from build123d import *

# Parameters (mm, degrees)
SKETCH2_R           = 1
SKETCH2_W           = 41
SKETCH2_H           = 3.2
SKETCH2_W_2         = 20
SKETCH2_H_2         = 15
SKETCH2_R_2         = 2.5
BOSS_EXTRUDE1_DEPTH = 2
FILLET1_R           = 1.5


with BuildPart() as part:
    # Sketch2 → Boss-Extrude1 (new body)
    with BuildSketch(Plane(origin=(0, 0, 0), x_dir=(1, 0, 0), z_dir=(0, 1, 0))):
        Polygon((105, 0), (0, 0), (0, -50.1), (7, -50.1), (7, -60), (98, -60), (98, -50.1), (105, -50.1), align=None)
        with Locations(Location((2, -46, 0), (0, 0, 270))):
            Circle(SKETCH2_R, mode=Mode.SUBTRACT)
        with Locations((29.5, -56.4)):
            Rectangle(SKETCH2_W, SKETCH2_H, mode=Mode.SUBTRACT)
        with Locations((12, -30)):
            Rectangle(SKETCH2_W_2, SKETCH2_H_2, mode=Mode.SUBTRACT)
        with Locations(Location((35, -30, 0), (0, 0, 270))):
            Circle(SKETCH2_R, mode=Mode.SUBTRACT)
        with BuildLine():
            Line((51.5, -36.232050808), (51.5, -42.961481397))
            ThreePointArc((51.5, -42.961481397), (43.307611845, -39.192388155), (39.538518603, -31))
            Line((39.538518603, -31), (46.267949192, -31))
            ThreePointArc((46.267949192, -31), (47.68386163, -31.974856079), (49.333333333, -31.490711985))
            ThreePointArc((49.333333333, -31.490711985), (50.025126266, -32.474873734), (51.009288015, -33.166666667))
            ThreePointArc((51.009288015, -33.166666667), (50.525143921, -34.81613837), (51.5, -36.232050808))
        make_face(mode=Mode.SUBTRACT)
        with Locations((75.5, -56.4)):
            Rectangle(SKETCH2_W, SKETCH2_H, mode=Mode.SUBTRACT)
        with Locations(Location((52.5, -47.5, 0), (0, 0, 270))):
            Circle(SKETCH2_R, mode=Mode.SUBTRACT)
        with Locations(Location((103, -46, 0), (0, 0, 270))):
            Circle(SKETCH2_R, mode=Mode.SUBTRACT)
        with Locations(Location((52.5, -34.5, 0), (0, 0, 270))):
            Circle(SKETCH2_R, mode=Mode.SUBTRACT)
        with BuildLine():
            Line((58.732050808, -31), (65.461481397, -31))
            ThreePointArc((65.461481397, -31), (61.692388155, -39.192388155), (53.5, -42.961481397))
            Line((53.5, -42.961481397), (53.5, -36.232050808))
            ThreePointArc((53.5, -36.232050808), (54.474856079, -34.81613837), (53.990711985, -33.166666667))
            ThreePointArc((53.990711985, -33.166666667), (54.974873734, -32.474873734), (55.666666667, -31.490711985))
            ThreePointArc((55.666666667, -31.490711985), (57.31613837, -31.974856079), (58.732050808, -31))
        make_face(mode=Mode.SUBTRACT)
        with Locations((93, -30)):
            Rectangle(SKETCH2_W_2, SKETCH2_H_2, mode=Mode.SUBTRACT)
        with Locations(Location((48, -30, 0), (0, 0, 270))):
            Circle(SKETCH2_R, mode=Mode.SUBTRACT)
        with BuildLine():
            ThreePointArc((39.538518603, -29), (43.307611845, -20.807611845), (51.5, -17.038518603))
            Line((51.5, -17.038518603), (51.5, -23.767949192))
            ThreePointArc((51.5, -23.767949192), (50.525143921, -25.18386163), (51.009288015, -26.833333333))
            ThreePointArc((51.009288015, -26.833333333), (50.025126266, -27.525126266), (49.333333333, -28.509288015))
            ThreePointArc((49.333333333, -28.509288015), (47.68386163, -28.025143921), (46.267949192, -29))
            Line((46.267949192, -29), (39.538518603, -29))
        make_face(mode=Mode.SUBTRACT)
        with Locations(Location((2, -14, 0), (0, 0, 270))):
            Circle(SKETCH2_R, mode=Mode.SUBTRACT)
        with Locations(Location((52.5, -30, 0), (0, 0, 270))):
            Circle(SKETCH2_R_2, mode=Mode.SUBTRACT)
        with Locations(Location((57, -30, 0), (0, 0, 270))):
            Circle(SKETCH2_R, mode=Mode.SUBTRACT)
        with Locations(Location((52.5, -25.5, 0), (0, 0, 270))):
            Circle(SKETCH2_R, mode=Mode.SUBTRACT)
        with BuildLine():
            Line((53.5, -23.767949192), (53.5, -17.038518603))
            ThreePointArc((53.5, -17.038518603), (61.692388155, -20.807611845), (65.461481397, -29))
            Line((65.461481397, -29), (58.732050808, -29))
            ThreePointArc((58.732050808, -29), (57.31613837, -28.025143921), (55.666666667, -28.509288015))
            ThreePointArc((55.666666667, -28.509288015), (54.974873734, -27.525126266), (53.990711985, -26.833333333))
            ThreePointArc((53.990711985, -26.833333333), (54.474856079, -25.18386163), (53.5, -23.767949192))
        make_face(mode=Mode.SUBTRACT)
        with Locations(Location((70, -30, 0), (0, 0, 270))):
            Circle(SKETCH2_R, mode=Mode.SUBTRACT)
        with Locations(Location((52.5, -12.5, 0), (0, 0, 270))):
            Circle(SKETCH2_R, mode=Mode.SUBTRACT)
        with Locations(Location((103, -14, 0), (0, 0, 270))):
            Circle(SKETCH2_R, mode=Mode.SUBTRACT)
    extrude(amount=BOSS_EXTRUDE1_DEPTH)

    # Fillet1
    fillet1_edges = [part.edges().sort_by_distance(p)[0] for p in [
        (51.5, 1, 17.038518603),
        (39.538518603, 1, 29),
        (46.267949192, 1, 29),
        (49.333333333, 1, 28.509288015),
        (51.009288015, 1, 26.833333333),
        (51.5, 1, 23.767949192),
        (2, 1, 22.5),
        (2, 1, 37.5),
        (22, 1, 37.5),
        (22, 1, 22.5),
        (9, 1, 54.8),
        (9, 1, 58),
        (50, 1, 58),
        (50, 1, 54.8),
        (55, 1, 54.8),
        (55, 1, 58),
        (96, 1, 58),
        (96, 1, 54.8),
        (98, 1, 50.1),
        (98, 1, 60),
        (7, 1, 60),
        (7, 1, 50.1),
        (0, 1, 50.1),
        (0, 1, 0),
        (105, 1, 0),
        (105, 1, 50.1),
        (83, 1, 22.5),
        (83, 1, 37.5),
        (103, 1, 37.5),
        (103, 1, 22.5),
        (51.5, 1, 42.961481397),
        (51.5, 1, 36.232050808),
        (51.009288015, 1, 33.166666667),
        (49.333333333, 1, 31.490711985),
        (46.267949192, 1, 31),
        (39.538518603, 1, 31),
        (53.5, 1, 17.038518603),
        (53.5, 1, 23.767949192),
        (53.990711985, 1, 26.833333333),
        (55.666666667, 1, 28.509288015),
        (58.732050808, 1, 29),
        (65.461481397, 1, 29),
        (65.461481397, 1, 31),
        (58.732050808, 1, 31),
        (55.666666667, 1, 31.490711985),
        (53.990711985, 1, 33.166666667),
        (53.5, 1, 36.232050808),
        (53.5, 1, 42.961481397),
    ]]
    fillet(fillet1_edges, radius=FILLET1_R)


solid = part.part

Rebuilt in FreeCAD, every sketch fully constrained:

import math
import FreeCAD as App
import Part
import Sketcher
from FreeCAD import Vector
Q = App.Units.Quantity


def edges_at(feature, points):
    """Names of the edges that pass closest to the given points."""
    edges = feature.Shape.Edges
    near = lambda p: min(range(len(edges)), key=lambda i: edges[i].distToShape(Part.Vertex(*p))[0])
    return sorted({f"Edge{near(p) + 1}" for p in points})

doc = App.newDocument("Part")
body = doc.addObject("PartDesign::Body", "Body")

sketch1 = body.newObject("Sketcher::SketchObject", "Sketch")
sketch1.AttachmentSupport = (doc.getObject("XZ_Plane"), [""])
sketch1.MapMode = "FlatFace"
sketch1.addGeometry([
    Part.LineSegment(Vector(105, 0, 0), Vector(0, 0, 0)),
    Part.LineSegment(Vector(0, 0, 0), Vector(0, 50.1, 0)),
    Part.LineSegment(Vector(0, 50.1, 0), Vector(7, 50.1, 0)),
    Part.LineSegment(Vector(7, 50.1, 0), Vector(7, 60, 0)),
    Part.LineSegment(Vector(7, 60, 0), Vector(98, 60, 0)),
    Part.LineSegment(Vector(98, 60, 0), Vector(98, 50.1, 0)),
    Part.LineSegment(Vector(98, 50.1, 0), Vector(105, 50.1, 0)),
    Part.LineSegment(Vector(105, 50.1, 0), Vector(105, 0, 0)),
    Part.LineSegment(Vector(50, 58, 0), Vector(9, 58, 0)),
    Part.LineSegment(Vector(9, 58, 0), Vector(9, 54.8, 0)),
    Part.LineSegment(Vector(9, 54.8, 0), Vector(50, 54.8, 0)),
    Part.LineSegment(Vector(50, 54.8, 0), Vector(50, 58, 0)),
    Part.Circle(Vector(52.5, 47.5, 0), Vector(0, 0, 1), 1),
    Part.Circle(Vector(2, 46, 0), Vector(0, 0, 1), 1),
    Part.ArcOfCircle(Part.Circle(Vector(52.5, 34.5, 0), Vector(0, 0, 1), 2), math.radians(120), math.radians(221.810315)),
    Part.LineSegment(Vector(51.5, 36.232051, 0), Vector(51.5, 42.961481, 0)),
    Part.ArcOfCircle(Part.Circle(Vector(52.5, 30, 0), Vector(0, 0, 1), 13), math.radians(94.411726), math.radians(175.588274)),
    Part.LineSegment(Vector(39.538519, 31, 0), Vector(46.267949, 31, 0)),
    Part.ArcOfCircle(Part.Circle(Vector(48, 30, 0), Vector(0, 0, 1), 2), math.radians(48.189685), math.radians(150)),
    Part.ArcOfCircle(Part.Circle(Vector(52.5, 30, 0), Vector(0, 0, 1), 3.5), math.radians(115.208765), math.radians(154.791235)),
    Part.LineSegment(Vector(96, 58, 0), Vector(55, 58, 0)),
    Part.LineSegment(Vector(55, 58, 0), Vector(55, 54.8, 0)),
    Part.LineSegment(Vector(55, 54.8, 0), Vector(96, 54.8, 0)),
    Part.LineSegment(Vector(96, 54.8, 0), Vector(96, 58, 0)),
    Part.ArcOfCircle(Part.Circle(Vector(57, 30, 0), Vector(0, 0, 1), 2), math.radians(30), math.radians(131.810315)),
    Part.LineSegment(Vector(58.732051, 31, 0), Vector(65.461481, 31, 0)),
    Part.ArcOfCircle(Part.Circle(Vector(52.5, 30, 0), Vector(0, 0, 1), 13), math.radians(4.411726), math.radians(85.588274)),
    Part.LineSegment(Vector(53.5, 42.961481, 0), Vector(53.5, 36.232051, 0)),
    Part.ArcOfCircle(Part.Circle(Vector(52.5, 34.5, 0), Vector(0, 0, 1), 2), math.radians(-41.810315), math.radians(60)),
    Part.ArcOfCircle(Part.Circle(Vector(52.5, 30, 0), Vector(0, 0, 1), 3.5), math.radians(25.208765), math.radians(64.791235)),
    Part.Circle(Vector(103, 46, 0), Vector(0, 0, 1), 1),
    Part.LineSegment(Vector(22, 37.5, 0), Vector(2, 37.5, 0)),
    Part.LineSegment(Vector(2, 37.5, 0), Vector(2, 22.5, 0)),
    Part.LineSegment(Vector(2, 22.5, 0), Vector(22, 22.5, 0)),
    Part.LineSegment(Vector(22, 22.5, 0), Vector(22, 37.5, 0)),
    Part.Circle(Vector(35, 30, 0), Vector(0, 0, 1), 1),
    Part.Circle(Vector(52.5, 34.5, 0), Vector(0, 0, 1), 1),
    Part.Circle(Vector(48, 30, 0), Vector(0, 0, 1), 1),
    Part.Circle(Vector(52.5, 30, 0), Vector(0, 0, 1), 2.5),
    Part.Circle(Vector(52.5, 25.5, 0), Vector(0, 0, 1), 1),
    Part.Circle(Vector(2, 14, 0), Vector(0, 0, 1), 1),
    Part.LineSegment(Vector(46.267949, 29, 0), Vector(39.538519, 29, 0)),
    Part.ArcOfCircle(Part.Circle(Vector(52.5, 30, 0), Vector(0, 0, 1), 13), math.radians(-175.588274), math.radians(-94.411726)),
    Part.LineSegment(Vector(51.5, 17.038519, 0), Vector(51.5, 23.767949, 0)),
    Part.ArcOfCircle(Part.Circle(Vector(52.5, 25.5, 0), Vector(0, 0, 1), 2), math.radians(138.189685), math.radians(240)),
    Part.ArcOfCircle(Part.Circle(Vector(52.5, 30, 0), Vector(0, 0, 1), 3.5), math.radians(-154.791235), math.radians(-115.208765)),
    Part.ArcOfCircle(Part.Circle(Vector(48, 30, 0), Vector(0, 0, 1), 2), math.radians(-150), math.radians(-48.189685)),
    Part.Circle(Vector(52.5, 12.5, 0), Vector(0, 0, 1), 1),
    Part.Circle(Vector(57, 30, 0), Vector(0, 0, 1), 1),
    Part.Circle(Vector(70, 30, 0), Vector(0, 0, 1), 1),
    Part.LineSegment(Vector(103, 37.5, 0), Vector(83, 37.5, 0)),
    Part.LineSegment(Vector(83, 37.5, 0), Vector(83, 22.5, 0)),
    Part.LineSegment(Vector(83, 22.5, 0), Vector(103, 22.5, 0)),
    Part.LineSegment(Vector(103, 22.5, 0), Vector(103, 37.5, 0)),
    Part.ArcOfCircle(Part.Circle(Vector(52.5, 25.5, 0), Vector(0, 0, 1), 2), math.radians(-60), math.radians(41.810315)),
    Part.LineSegment(Vector(53.5, 23.767949, 0), Vector(53.5, 17.038519, 0)),
    Part.ArcOfCircle(Part.Circle(Vector(52.5, 30, 0), Vector(0, 0, 1), 13), math.radians(-85.588274), math.radians(-4.411726)),
    Part.LineSegment(Vector(65.461481, 29, 0), Vector(58.732051, 29, 0)),
    Part.ArcOfCircle(Part.Circle(Vector(57, 30, 0), Vector(0, 0, 1), 2), math.radians(-131.810315), math.radians(-30)),
    Part.ArcOfCircle(Part.Circle(Vector(52.5, 30, 0), Vector(0, 0, 1), 3.5), math.radians(-64.791235), math.radians(-25.208765)),
    Part.Circle(Vector(103, 14, 0), Vector(0, 0, 1), 1),
], False)
sketch1.addConstraint([
    Sketcher.Constraint("Coincident", 0, 2, 1, 1),
    Sketcher.Constraint("Coincident", 1, 2, 2, 1),
    Sketcher.Constraint("Coincident", 2, 2, 3, 1),
    Sketcher.Constraint("Coincident", 3, 2, 4, 1),
    Sketcher.Constraint("Coincident", 4, 2, 5, 1),
    Sketcher.Constraint("Coincident", 5, 2, 6, 1),
    Sketcher.Constraint("Coincident", 6, 2, 7, 1),
    Sketcher.Constraint("Coincident", 7, 2, 0, 1),
    Sketcher.Constraint("Coincident", 8, 2, 9, 1),
    Sketcher.Constraint("Coincident", 9, 2, 10, 1),
    Sketcher.Constraint("Coincident", 10, 2, 11, 1),
    Sketcher.Constraint("Coincident", 11, 2, 8, 1),
    Sketcher.Constraint("Coincident", 14, 1, 15, 1),
    Sketcher.Constraint("Coincident", 15, 2, 16, 1),
    Sketcher.Constraint("Coincident", 16, 2, 17, 1),
    Sketcher.Constraint("Coincident", 17, 2, 18, 2),
    Sketcher.Constraint("Coincident", 18, 1, 19, 2),
    Sketcher.Constraint("Coincident", 19, 1, 14, 2),
    Sketcher.Constraint("Coincident", 20, 2, 21, 1),
    Sketcher.Constraint("Coincident", 21, 2, 22, 1),
    Sketcher.Constraint("Coincident", 22, 2, 23, 1),
    Sketcher.Constraint("Coincident", 23, 2, 20, 1),
    Sketcher.Constraint("Coincident", 24, 1, 25, 1),
    Sketcher.Constraint("Coincident", 25, 2, 26, 1),
    Sketcher.Constraint("Coincident", 26, 2, 27, 1),
    Sketcher.Constraint("Coincident", 27, 2, 28, 2),
    Sketcher.Constraint("Coincident", 28, 1, 29, 2),
    Sketcher.Constraint("Coincident", 29, 1, 24, 2),
    Sketcher.Constraint("Coincident", 31, 2, 32, 1),
    Sketcher.Constraint("Coincident", 32, 2, 33, 1),
    Sketcher.Constraint("Coincident", 33, 2, 34, 1),
    Sketcher.Constraint("Coincident", 34, 2, 31, 1),
    Sketcher.Constraint("Coincident", 41, 2, 42, 1),
    Sketcher.Constraint("Coincident", 42, 2, 43, 1),
    Sketcher.Constraint("Coincident", 43, 2, 44, 2),
    Sketcher.Constraint("Coincident", 44, 1, 45, 2),
    Sketcher.Constraint("Coincident", 45, 1, 46, 2),
    Sketcher.Constraint("Coincident", 46, 1, 41, 1),
    Sketcher.Constraint("Coincident", 50, 2, 51, 1),
    Sketcher.Constraint("Coincident", 51, 2, 52, 1),
    Sketcher.Constraint("Coincident", 52, 2, 53, 1),
    Sketcher.Constraint("Coincident", 53, 2, 50, 1),
    Sketcher.Constraint("Coincident", 54, 1, 55, 1),
    Sketcher.Constraint("Coincident", 55, 2, 56, 1),
    Sketcher.Constraint("Coincident", 56, 2, 57, 1),
    Sketcher.Constraint("Coincident", 57, 2, 58, 2),
    Sketcher.Constraint("Coincident", 58, 1, 59, 2),
    Sketcher.Constraint("Coincident", 59, 1, 54, 2),
    Sketcher.Constraint("Horizontal", 0),
    Sketcher.Constraint("Vertical", 1),
    Sketcher.Constraint("Horizontal", 2),
    Sketcher.Constraint("Vertical", 3),
    Sketcher.Constraint("Horizontal", 4),
    Sketcher.Constraint("Vertical", 5),
    Sketcher.Constraint("Horizontal", 6),
    Sketcher.Constraint("Vertical", 7),
    Sketcher.Constraint("Horizontal", 8),
    Sketcher.Constraint("Vertical", 9),
    Sketcher.Constraint("Horizontal", 10),
    Sketcher.Constraint("Vertical", 11),
    Sketcher.Constraint("Vertical", 15),
    Sketcher.Constraint("Horizontal", 17),
    Sketcher.Constraint("Horizontal", 20),
    Sketcher.Constraint("Vertical", 21),
    Sketcher.Constraint("Horizontal", 22),
    Sketcher.Constraint("Vertical", 23),
    Sketcher.Constraint("Horizontal", 25),
    Sketcher.Constraint("Vertical", 27),
    Sketcher.Constraint("Horizontal", 31),
    Sketcher.Constraint("Vertical", 32),
    Sketcher.Constraint("Horizontal", 33),
    Sketcher.Constraint("Vertical", 34),
    Sketcher.Constraint("Horizontal", 41),
    Sketcher.Constraint("Vertical", 43),
    Sketcher.Constraint("Horizontal", 50),
    Sketcher.Constraint("Vertical", 51),
    Sketcher.Constraint("Horizontal", 52),
    Sketcher.Constraint("Vertical", 53),
    Sketcher.Constraint("Vertical", 55),
    Sketcher.Constraint("Horizontal", 57),
    Sketcher.Constraint("Coincident", 0, 2, -1, 1),
    Sketcher.Constraint("Coincident", 19, 3, 16, 3),
    Sketcher.Constraint("Coincident", 26, 3, 16, 3),
    Sketcher.Constraint("Coincident", 28, 3, 14, 3),
    Sketcher.Constraint("Coincident", 29, 3, 16, 3),
    Sketcher.Constraint("Coincident", 36, 3, 14, 3),
    Sketcher.Constraint("Coincident", 37, 3, 18, 3),
    Sketcher.Constraint("Coincident", 38, 3, 16, 3),
    Sketcher.Constraint("Coincident", 42, 3, 16, 3),
    Sketcher.Constraint("Coincident", 44, 3, 39, 3),
    Sketcher.Constraint("Coincident", 45, 3, 16, 3),
    Sketcher.Constraint("Coincident", 46, 3, 18, 3),
    Sketcher.Constraint("Coincident", 48, 3, 24, 3),
    Sketcher.Constraint("Coincident", 54, 3, 39, 3),
    Sketcher.Constraint("Coincident", 56, 3, 16, 3),
    Sketcher.Constraint("Coincident", 58, 3, 24, 3),
    Sketcher.Constraint("Coincident", 59, 3, 16, 3),
    Sketcher.Constraint("Equal", 12, 13),
    Sketcher.Constraint("Equal", 14, 18),
    Sketcher.Constraint("Equal", 18, 24),
    Sketcher.Constraint("Equal", 16, 26),
    Sketcher.Constraint("Equal", 24, 28),
    Sketcher.Constraint("Equal", 19, 29),
    Sketcher.Constraint("Equal", 13, 30),
    Sketcher.Constraint("Equal", 30, 35),
    Sketcher.Constraint("Equal", 35, 36),
    Sketcher.Constraint("Equal", 36, 37),
    Sketcher.Constraint("Equal", 37, 39),
    Sketcher.Constraint("Equal", 39, 40),
    Sketcher.Constraint("Equal", 26, 42),
    Sketcher.Constraint("Equal", 28, 44),
    Sketcher.Constraint("Equal", 29, 45),
    Sketcher.Constraint("Equal", 44, 46),
    Sketcher.Constraint("Equal", 40, 47),
    Sketcher.Constraint("Equal", 47, 48),
    Sketcher.Constraint("Equal", 48, 49),
    Sketcher.Constraint("Equal", 46, 54),
    Sketcher.Constraint("Equal", 42, 56),
    Sketcher.Constraint("Equal", 54, 58),
    Sketcher.Constraint("Equal", 45, 59),
    Sketcher.Constraint("Equal", 49, 60),
    Sketcher.Constraint("Horizontal", 16, 3, 18, 3),
    Sketcher.Constraint("Horizontal", 19, 3, 24, 3),
    Sketcher.Constraint("Horizontal", 13, 3, 30, 3),
    Sketcher.Constraint("Horizontal", 29, 3, 35, 3),
    Sketcher.Constraint("Horizontal", 48, 3, 49, 3),
    Sketcher.Constraint("Horizontal", 40, 3, 60, 3),
    Sketcher.Constraint("Horizontal", 2, 2, 5, 2),
    Sketcher.Constraint("Horizontal", 11, 2, 20, 2),
    Sketcher.Constraint("Horizontal", 10, 2, 21, 2),
    Sketcher.Constraint("Horizontal", 17, 2, 24, 1),
    Sketcher.Constraint("Horizontal", 15, 2, 26, 2),
    Sketcher.Constraint("Horizontal", 14, 1, 27, 2),
    Sketcher.Constraint("Horizontal", 18, 1, 29, 1),
    Sketcher.Constraint("Horizontal", 34, 2, 50, 2),
    Sketcher.Constraint("Horizontal", 33, 2, 51, 2),
    Sketcher.Constraint("Horizontal", 43, 2, 54, 1),
    Sketcher.Constraint("Horizontal", 42, 2, 55, 2),
    Sketcher.Constraint("Horizontal", 46, 1, 56, 2),
    Sketcher.Constraint("Vertical", 12, 3, 14, 3),
    Sketcher.Constraint("Vertical", 13, 3, 40, 3),
    Sketcher.Constraint("Vertical", 45, 3, 47, 3),
    Sketcher.Constraint("Vertical", 30, 3, 60, 3),
    Sketcher.Constraint("Vertical", 40, 3, 31, 2),
    Sketcher.Constraint("Vertical", 16, 2, 41, 2),
    Sketcher.Constraint("Vertical", 15, 2, 42, 2),
    Sketcher.Constraint("Vertical", 19, 1, 44, 1),
    Sketcher.Constraint("Vertical", 60, 3, 52, 2),
    Sketcher.Constraint("Equal", 2, 6),
    Sketcher.Constraint("Equal", 10, 20),
    Sketcher.Constraint("Equal", 33, 50),
    Sketcher.Constraint("Equal", 57, 15),
    Sketcher.Constraint("Diameter", 12, Q("2 mm")),
    Sketcher.Constraint("Diameter", 38, Q("5 mm")),
    Sketcher.Constraint("Radius", 14, Q("2 mm")),
    Sketcher.Constraint("Radius", 16, Q("13 mm")),
    Sketcher.Constraint("Radius", 19, Q("3.5 mm")),
    Sketcher.Constraint("DistanceX", 0, 2, 0, 1, Q("105 mm")),
    Sketcher.Constraint("DistanceX", 2, 1, 2, 2, Q("7 mm")),
    Sketcher.Constraint("DistanceX", 8, 2, 8, 1, Q("41 mm")),
    Sketcher.Constraint("DistanceX", 31, 2, 31, 1, Q("20 mm")),
    Sketcher.Constraint("DistanceY", 32, 2, 32, 1, Q("15 mm")),
    Sketcher.Constraint("DistanceY", 1, 1, 1, 2, Q("50.1 mm")),
    Sketcher.Constraint("DistanceY", 3, 1, 3, 2, Q("9.9 mm")),
    Sketcher.Constraint("DistanceY", 9, 2, 9, 1, Q("3.2 mm")),
    Sketcher.Constraint("DistanceX", -1, 1, 13, 3, Q("2 mm")),
    Sketcher.Constraint("DistanceY", -1, 1, 13, 3, Q("46 mm")),
    Sketcher.Constraint("DistanceY", -1, 1, 16, 3, Q("30 mm")),
    Sketcher.Constraint("DistanceX", -1, 1, 18, 3, Q("48 mm")),
    Sketcher.Constraint("DistanceX", -1, 1, 24, 3, Q("57 mm")),
    Sketcher.Constraint("DistanceX", -1, 1, 30, 3, Q("103 mm")),
    Sketcher.Constraint("DistanceX", -1, 1, 35, 3, Q("35 mm")),
    Sketcher.Constraint("DistanceY", -1, 1, 40, 3, Q("14 mm")),
    Sketcher.Constraint("DistanceX", -1, 1, 49, 3, Q("70 mm")),
    Sketcher.Constraint("DistanceX", -1, 1, 8, 2, Q("9 mm")),
    Sketcher.Constraint("DistanceY", -1, 1, 8, 2, Q("58 mm")),
    Sketcher.Constraint("DistanceY", -1, 1, 16, 2, Q("31 mm")),
    Sketcher.Constraint("DistanceX", -1, 1, 20, 2, Q("55 mm")),
    Sketcher.Constraint("DistanceY", -1, 1, 12, 3, Q("47.5 mm")),
    Sketcher.Constraint("DistanceY", -1, 1, 14, 3, Q("34.5 mm")),
    Sketcher.Constraint("DistanceY", -1, 1, 47, 3, Q("12.5 mm")),
    Sketcher.Constraint("DistanceY", -1, 1, 31, 2, Q("37.5 mm")),
])
pad1 = body.newObject("PartDesign::Pad", "Pad")
pad1.Profile = sketch1
pad1.Length = 2
pad1.Reversed = True
doc.recompute()

fillet = body.newObject("PartDesign::Fillet", "Fillet")
fillet.Base = (pad1, edges_at(pad1, [
    (51.5, 1, 17.039),
    (39.539, 1, 29),
    (46.268, 1, 29),
    (49.333, 1, 28.509),
    (51.009, 1, 26.833),
    (51.5, 1, 23.768),
    (2, 1, 22.5),
    (2, 1, 37.5),
    (22, 1, 37.5),
    (22, 1, 22.5),
    (9, 1, 54.8),
    (9, 1, 58),
    (50, 1, 58),
    (50, 1, 54.8),
    (55, 1, 54.8),
    (55, 1, 58),
    (96, 1, 58),
    (96, 1, 54.8),
    (98, 1, 50.1),
    (98, 1, 60),
    (7, 1, 60),
    (7, 1, 50.1),
    (0, 1, 50.1),
    (0, 1, 0),
    (105, 1, 0),
    (105, 1, 50.1),
    (83, 1, 22.5),
    (83, 1, 37.5),
    (103, 1, 37.5),
    (103, 1, 22.5),
    (51.5, 1, 42.961),
    (51.5, 1, 36.232),
    (51.009, 1, 33.167),
    (49.333, 1, 31.491),
    (46.268, 1, 31),
    (39.539, 1, 31),
    (53.5, 1, 17.039),
    (53.5, 1, 23.768),
    (53.991, 1, 26.833),
    (55.667, 1, 28.509),
    (58.732, 1, 29),
    (65.461, 1, 29),
    (65.461, 1, 31),
    (58.732, 1, 31),
    (55.667, 1, 31.491),
    (53.991, 1, 33.167),
    (53.5, 1, 36.232),
    (53.5, 1, 42.961),
]))
fillet.Radius = 1.5

doc.recompute()
